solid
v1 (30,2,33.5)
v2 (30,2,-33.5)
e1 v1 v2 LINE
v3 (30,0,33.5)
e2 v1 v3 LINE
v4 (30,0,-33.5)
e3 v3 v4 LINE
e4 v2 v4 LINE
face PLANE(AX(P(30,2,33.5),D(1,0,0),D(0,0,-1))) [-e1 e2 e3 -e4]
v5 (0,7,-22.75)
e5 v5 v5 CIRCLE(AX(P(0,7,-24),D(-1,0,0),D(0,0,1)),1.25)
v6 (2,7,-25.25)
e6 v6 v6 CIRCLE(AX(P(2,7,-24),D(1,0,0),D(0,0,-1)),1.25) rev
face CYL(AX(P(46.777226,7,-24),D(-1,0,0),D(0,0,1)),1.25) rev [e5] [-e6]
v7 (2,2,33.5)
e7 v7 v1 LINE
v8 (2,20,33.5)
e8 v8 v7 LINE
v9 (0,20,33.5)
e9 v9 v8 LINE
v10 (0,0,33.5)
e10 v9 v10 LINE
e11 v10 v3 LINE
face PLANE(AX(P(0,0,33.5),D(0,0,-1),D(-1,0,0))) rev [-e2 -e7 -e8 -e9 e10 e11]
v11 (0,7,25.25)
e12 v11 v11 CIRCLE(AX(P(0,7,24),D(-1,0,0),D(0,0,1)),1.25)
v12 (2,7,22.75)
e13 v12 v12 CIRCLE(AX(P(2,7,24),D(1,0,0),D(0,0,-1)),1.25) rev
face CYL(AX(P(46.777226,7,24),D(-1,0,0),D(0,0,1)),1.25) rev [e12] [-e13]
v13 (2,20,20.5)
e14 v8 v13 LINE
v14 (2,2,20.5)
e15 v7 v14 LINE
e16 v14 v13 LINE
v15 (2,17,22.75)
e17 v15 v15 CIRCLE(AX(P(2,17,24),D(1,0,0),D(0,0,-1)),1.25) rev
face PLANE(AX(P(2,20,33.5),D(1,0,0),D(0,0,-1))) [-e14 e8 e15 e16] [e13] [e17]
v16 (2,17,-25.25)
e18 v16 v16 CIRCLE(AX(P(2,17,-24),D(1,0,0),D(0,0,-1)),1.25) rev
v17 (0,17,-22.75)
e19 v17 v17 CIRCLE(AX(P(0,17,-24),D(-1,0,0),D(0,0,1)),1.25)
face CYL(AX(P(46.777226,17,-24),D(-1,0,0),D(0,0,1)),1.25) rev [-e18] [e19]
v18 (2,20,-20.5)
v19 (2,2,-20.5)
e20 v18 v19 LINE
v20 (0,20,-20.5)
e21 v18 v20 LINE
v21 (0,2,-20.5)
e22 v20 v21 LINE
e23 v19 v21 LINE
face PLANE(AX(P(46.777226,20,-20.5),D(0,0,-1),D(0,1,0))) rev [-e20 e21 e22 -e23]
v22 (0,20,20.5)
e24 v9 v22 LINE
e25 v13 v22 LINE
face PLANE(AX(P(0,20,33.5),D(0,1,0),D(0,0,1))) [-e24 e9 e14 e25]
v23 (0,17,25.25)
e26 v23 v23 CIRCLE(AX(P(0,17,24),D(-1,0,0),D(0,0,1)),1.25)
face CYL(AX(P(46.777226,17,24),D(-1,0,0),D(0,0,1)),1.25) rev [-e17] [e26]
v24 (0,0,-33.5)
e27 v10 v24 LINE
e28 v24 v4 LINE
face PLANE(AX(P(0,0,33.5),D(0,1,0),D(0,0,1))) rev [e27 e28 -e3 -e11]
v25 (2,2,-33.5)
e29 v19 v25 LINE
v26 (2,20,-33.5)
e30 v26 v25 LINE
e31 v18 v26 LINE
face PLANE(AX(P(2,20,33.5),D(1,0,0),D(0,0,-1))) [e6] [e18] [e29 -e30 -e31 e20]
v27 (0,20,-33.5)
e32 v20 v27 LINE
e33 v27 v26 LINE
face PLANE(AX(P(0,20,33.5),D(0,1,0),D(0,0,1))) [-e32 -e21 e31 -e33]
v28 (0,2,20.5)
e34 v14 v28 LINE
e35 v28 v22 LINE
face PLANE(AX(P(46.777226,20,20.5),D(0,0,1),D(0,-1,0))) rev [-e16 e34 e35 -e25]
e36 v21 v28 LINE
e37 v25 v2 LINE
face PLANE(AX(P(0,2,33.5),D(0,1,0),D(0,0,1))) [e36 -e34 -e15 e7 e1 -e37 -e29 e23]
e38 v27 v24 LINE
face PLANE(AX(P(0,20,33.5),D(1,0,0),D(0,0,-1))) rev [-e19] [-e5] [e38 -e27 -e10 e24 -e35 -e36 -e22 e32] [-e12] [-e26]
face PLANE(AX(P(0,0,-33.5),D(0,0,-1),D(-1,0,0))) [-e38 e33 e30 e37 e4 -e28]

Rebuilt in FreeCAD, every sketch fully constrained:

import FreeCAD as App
import Part
import Sketcher

doc = App.newDocument("Part")
body = doc.addObject("PartDesign::Body", "Body")

sketch1 = body.newObject("Sketcher::SketchObject", "Sketch")
sketch1.AttachmentSupport = (doc.getObject("XY_Plane"), [""])
sketch1.MapMode = "FlatFace"
sketch1.addGeometry([
    Part.LineSegment(App.Vector(0, 20, 0), App.Vector(0, 0, 0)),
    Part.LineSegment(App.Vector(0, 0, 0), App.Vector(30, 0, 0)),
    Part.LineSegment(App.Vector(30, 0, 0), App.Vector(30, 2, 0)),
    Part.LineSegment(App.Vector(30, 2, 0), App.Vector(2, 2, 0)),
    Part.LineSegment(App.Vector(2, 2, 0), App.Vector(2, 20, 0)),
    Part.LineSegment(App.Vector(2, 20, 0), App.Vector(0, 20, 0)),
], False)
sketch1.addConstraint([
    Sketcher.Constraint("Coincident", 0, 2, 1, 1),
    Sketcher.Constraint("Coincident", 1, 2, 2, 1),
    Sketcher.Constraint("Coincident", 2, 2, 3, 1),
    Sketcher.Constraint("Coincident", 3, 2, 4, 1),
    Sketcher.Constraint("Coincident", 4, 2, 5, 1),
    Sketcher.Constraint("Coincident", 5, 2, 0, 1),
    Sketcher.Constraint("Vertical", 0),
    Sketcher.Constraint("Horizontal", 1),
    Sketcher.Constraint("Vertical", 2),
    Sketcher.Constraint("Horizontal", 3),
    Sketcher.Constraint("Vertical", 4),
    Sketcher.Constraint("Horizontal", 5),
    Sketcher.Constraint("Coincident", 0, 2, -1, 1),
    Sketcher.Constraint("Equal", 5, 2),
    Sketcher.Constraint("DistanceX", 1, 1, 1, 2, 30.0),
    Sketcher.Constraint("DistanceX", 3, 2, 3, 1, 28.0),
    Sketcher.Constraint("DistanceY", 0, 2, 0, 1, 20.0),
])
pad1 = body.newObject("PartDesign::Pad", "Pad")
pad1.Profile = sketch1
pad1.Length = 67
pad1.Midplane = True

sketch2 = body.newObject("Sketcher::SketchObject", "Sketch001")
sketch2.AttachmentSupport = (doc.getObject("YZ_Plane"), [""])
sketch2.MapMode = "FlatFace"
sketch2.addGeometry([
    Part.Circle(App.Vector(7, -24, 0), App.Vector(0, 0, 1), 1.25),
    Part.Circle(App.Vector(7, 24, 0), App.Vector(0, 0, 1), 1.25),
    Part.Circle(App.Vector(17, 24, 0), App.Vector(0, 0, 1), 1.25),
    Part.Circle(App.Vector(17, -24, 0), App.Vector(0, 0, 1), 1.25),
    Part.LineSegment(App.Vector(20, -20.5, 0), App.Vector(2, -20.5, 0)),
    Part.LineSegment(App.Vector(2, -20.5, 0), App.Vector(2, 20.5, 0)),
    Part.LineSegment(App.Vector(2, 20.5, 0), App.Vector(20, 20.5, 0)),
    Part.LineSegment(App.Vector(20, 20.5, 0), App.Vector(20, -20.5, 0)),
], False)
sketch2.addConstraint([
    Sketcher.Constraint("Coincident", 4, 2, 5, 1),
    Sketcher.Constraint("Coincident", 5, 2, 6, 1),
    Sketcher.Constraint("Coincident", 6, 2, 7, 1),
    Sketcher.Constraint("Coincident", 7, 2, 4, 1),
    Sketcher.Constraint("Horizontal", 4),
    Sketcher.Constraint("Vertical", 5),
    Sketcher.Constraint("Horizontal", 6),
    Sketcher.Constraint("Vertical", 7),
    Sketcher.Constraint("Equal", 0, 1),
    Sketcher.Constraint("Equal", 1, 2),
    Sketcher.Constraint("Equal", 2, 3),
    Sketcher.Constraint("Symmetric", 0, 3, 1, 3, -1),
    Sketcher.Constraint("Symmetric", 2, 3, 3, 3, -1),
    Sketcher.Constraint("Horizontal", 1, 3, 2, 3),
    Sketcher.Constraint("Diameter", 0, 2.5),
    Sketcher.Constraint("DistanceX", 4, 2, 4, 1, 18.0),
    Sketcher.Constraint("DistanceY", 5, 1, 5, 2, 41.0),
    Sketcher.Constraint("DistanceX", -1, 1, 0, 3, 7.0),
    Sketcher.Constraint("DistanceY", 0, 3, -1, 1, 24.0),
    Sketcher.Constraint("DistanceX", -1, 1, 2, 3, 17.0),
    Sketcher.Constraint("DistanceX", -1, 1, 4, 2, 2.0),
    Sketcher.Constraint("DistanceY", 4, 2, -1, 1, 20.5),
])
pocket1 = body.newObject("PartDesign::Pocket", "Pocket")
pocket1.Profile = sketch2
pocket1.Length = 2
pocket1.Reversed = True

doc.recompute()
